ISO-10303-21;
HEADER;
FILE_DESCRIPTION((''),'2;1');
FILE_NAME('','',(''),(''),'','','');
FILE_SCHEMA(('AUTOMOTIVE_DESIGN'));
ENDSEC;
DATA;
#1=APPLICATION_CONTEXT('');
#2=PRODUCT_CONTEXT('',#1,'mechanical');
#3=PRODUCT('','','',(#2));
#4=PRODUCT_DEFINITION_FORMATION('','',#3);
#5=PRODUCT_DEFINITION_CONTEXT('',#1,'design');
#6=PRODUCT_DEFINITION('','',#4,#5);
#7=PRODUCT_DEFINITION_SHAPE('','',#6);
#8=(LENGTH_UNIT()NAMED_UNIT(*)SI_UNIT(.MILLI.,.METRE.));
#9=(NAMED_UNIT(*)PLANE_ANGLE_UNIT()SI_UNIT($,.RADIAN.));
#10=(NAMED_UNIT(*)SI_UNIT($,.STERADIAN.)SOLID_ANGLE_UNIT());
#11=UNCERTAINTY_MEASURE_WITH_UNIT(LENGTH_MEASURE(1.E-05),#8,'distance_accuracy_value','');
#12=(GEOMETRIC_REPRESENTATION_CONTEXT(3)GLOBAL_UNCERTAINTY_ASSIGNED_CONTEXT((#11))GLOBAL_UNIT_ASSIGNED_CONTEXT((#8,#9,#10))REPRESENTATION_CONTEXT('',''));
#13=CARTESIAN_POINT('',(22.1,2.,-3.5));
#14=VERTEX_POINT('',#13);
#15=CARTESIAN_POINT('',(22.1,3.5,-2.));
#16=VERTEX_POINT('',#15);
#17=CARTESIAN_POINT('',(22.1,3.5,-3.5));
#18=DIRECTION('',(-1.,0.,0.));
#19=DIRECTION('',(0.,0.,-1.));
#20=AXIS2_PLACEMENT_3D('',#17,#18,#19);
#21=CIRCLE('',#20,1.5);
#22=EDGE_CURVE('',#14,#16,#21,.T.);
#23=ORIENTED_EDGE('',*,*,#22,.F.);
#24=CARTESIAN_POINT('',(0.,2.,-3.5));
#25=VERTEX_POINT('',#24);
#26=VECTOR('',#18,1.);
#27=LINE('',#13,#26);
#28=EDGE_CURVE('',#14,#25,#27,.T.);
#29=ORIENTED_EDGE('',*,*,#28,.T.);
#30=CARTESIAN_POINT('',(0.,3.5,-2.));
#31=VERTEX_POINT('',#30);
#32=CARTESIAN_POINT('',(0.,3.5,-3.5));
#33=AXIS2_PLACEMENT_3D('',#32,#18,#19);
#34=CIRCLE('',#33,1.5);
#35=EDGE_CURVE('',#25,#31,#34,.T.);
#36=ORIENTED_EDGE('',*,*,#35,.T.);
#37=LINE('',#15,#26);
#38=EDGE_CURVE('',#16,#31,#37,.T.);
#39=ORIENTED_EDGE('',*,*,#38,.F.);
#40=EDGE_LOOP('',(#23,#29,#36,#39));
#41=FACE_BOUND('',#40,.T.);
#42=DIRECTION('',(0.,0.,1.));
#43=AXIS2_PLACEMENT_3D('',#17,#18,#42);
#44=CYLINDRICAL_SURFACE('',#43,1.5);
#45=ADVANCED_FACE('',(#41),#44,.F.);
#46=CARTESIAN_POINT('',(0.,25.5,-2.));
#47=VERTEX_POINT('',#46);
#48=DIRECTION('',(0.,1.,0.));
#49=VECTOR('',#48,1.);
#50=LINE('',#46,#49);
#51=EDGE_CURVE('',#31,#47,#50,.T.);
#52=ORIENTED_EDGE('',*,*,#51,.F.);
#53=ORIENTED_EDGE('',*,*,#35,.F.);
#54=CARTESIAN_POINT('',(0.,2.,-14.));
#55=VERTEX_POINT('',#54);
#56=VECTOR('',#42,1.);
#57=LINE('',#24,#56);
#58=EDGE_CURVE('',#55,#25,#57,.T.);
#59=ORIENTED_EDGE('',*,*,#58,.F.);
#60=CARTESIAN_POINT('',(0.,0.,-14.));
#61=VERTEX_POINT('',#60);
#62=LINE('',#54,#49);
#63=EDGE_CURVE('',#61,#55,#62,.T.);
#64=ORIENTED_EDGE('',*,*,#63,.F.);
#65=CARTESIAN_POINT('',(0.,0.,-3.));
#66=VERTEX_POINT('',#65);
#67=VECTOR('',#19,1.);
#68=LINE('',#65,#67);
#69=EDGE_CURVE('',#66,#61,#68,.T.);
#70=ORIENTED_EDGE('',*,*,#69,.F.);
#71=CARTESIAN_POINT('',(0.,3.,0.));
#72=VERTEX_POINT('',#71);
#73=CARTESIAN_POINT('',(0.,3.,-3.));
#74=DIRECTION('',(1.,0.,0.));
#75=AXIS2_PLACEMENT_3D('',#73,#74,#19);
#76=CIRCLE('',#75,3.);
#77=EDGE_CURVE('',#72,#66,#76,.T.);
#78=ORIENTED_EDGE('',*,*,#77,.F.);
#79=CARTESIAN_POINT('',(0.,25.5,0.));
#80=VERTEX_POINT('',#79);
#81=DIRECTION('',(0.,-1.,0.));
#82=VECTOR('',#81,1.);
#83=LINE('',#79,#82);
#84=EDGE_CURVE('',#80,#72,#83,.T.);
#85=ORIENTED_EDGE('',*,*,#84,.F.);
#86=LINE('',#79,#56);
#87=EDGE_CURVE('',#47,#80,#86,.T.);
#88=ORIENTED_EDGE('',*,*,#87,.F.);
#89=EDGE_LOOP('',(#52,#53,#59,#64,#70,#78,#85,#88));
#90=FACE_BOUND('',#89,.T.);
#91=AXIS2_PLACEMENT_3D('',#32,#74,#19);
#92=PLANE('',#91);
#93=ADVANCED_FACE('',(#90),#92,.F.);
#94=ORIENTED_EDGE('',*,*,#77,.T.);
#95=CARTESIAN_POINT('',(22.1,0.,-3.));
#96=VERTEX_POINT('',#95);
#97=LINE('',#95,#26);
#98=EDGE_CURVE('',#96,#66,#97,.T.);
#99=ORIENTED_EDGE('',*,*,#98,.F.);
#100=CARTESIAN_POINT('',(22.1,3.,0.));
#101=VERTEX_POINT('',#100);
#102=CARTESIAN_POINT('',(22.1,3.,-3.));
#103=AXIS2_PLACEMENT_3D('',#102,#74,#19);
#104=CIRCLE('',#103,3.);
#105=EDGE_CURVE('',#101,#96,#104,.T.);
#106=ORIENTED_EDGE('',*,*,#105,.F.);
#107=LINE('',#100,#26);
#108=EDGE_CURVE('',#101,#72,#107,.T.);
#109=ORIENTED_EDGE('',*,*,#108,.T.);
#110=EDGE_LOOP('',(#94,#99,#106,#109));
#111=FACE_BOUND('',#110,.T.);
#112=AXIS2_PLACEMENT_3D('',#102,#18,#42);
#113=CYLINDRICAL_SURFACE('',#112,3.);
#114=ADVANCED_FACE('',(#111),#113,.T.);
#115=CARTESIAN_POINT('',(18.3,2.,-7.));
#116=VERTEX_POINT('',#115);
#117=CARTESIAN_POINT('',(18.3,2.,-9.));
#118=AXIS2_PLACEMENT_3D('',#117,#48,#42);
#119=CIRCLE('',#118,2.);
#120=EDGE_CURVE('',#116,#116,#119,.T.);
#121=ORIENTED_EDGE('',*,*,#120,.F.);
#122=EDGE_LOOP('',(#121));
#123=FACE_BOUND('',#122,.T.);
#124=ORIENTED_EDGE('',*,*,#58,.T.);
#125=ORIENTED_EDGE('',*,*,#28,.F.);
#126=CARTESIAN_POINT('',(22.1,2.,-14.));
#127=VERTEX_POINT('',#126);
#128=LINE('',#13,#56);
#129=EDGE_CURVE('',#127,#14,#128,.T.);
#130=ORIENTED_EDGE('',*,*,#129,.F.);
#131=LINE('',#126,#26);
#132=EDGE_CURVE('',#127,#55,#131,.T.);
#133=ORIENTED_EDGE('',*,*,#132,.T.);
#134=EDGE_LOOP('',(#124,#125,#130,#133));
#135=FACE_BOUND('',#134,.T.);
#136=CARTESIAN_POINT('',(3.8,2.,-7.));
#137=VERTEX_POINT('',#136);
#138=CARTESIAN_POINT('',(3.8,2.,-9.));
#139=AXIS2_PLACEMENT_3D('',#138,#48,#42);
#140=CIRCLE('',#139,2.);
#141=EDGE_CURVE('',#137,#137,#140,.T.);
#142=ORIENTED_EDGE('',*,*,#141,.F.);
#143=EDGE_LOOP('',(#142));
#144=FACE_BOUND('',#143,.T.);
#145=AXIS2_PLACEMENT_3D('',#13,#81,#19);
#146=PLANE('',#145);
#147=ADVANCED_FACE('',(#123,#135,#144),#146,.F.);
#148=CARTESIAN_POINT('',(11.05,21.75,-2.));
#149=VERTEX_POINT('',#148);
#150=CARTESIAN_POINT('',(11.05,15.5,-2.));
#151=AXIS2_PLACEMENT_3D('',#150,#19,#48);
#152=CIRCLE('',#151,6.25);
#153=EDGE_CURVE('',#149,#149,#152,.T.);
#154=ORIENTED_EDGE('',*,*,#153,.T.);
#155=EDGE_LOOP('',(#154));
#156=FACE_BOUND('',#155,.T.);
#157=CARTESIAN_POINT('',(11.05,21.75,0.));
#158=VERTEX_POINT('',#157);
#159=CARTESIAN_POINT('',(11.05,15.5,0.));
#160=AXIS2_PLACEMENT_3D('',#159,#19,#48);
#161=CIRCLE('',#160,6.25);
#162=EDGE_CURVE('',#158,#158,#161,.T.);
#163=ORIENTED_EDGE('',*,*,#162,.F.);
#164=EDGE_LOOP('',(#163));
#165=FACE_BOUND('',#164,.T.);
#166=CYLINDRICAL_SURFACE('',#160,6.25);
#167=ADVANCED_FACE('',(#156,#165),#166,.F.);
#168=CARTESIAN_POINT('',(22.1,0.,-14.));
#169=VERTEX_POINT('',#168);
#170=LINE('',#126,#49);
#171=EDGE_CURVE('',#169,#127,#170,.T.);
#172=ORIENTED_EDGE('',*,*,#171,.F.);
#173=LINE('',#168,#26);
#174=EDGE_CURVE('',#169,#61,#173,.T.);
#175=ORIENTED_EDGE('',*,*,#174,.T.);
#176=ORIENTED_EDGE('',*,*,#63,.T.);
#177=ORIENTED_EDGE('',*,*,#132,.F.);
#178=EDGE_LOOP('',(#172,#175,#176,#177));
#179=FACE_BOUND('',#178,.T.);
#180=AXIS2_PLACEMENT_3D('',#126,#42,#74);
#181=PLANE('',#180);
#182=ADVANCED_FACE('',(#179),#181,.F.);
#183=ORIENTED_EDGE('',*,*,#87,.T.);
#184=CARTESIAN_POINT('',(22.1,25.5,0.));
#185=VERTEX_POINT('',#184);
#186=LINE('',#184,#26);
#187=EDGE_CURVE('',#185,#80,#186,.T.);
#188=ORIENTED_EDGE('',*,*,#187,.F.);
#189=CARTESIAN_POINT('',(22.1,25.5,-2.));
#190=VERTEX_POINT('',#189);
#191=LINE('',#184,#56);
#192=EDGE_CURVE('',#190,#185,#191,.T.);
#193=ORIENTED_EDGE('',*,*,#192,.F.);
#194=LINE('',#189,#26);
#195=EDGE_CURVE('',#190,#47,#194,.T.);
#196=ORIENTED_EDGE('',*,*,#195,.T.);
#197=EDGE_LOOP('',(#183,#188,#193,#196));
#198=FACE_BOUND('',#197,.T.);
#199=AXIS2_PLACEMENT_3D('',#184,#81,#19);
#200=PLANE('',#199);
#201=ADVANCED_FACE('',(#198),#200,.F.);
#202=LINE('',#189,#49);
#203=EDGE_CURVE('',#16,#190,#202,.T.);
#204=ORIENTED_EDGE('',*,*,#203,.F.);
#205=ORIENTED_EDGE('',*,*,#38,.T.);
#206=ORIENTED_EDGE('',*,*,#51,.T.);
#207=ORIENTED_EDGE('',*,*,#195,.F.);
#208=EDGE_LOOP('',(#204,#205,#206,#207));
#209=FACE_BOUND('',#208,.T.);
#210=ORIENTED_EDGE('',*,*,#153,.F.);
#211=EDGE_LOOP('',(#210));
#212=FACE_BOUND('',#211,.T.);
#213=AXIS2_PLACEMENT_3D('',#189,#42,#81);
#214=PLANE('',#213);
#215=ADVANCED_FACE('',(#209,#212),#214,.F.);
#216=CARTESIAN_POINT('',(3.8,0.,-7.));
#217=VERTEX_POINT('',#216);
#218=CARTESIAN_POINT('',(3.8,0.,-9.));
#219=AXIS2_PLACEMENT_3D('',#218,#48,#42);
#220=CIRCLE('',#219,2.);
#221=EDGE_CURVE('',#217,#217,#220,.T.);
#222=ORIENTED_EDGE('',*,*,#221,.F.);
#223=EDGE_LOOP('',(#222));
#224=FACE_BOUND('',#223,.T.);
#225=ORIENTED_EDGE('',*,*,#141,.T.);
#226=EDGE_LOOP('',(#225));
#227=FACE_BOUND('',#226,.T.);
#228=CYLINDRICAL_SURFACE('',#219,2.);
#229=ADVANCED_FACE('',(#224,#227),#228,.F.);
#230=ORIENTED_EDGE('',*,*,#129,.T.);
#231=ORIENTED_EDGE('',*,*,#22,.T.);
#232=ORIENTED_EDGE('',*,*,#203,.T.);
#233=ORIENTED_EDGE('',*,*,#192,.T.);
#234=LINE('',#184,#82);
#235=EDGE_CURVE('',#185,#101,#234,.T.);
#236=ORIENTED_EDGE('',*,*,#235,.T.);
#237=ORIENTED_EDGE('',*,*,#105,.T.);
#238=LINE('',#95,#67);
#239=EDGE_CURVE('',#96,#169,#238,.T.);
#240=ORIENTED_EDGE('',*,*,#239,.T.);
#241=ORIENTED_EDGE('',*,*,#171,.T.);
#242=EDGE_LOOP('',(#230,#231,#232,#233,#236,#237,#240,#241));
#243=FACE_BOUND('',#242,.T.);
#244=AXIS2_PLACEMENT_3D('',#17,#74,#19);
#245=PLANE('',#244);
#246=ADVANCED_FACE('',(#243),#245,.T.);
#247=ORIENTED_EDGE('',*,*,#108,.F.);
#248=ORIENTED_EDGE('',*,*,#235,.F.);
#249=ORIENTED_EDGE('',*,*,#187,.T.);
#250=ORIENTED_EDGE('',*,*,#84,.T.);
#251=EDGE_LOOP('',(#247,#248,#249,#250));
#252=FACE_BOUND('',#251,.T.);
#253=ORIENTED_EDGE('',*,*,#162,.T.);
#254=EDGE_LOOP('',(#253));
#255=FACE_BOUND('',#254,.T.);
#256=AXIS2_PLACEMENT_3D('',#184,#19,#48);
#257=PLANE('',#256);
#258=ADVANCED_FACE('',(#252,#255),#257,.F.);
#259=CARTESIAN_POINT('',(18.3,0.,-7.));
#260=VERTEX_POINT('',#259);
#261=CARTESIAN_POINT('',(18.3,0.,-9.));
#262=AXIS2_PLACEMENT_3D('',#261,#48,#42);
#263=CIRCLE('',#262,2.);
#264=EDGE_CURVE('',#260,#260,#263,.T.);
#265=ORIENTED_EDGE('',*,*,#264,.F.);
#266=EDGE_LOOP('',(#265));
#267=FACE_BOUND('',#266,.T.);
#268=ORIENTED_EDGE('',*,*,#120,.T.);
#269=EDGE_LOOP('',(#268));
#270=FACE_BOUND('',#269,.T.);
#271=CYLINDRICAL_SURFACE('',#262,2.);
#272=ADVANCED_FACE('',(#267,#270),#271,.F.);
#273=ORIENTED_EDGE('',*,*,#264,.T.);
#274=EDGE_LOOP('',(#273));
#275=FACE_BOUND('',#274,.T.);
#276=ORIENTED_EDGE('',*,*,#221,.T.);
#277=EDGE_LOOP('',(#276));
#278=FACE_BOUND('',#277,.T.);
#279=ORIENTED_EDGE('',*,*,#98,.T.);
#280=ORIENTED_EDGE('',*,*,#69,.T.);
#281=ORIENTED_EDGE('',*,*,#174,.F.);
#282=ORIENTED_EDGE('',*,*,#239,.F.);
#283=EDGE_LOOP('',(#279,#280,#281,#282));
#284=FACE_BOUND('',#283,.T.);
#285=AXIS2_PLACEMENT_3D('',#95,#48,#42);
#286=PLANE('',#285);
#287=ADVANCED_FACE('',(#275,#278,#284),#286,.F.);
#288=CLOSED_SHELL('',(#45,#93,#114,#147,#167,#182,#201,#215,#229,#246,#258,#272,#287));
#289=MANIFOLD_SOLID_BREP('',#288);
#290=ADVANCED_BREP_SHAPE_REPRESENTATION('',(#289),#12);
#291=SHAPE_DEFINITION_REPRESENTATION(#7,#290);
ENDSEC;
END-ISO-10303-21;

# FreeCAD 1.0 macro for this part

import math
import FreeCAD as App
import Part
import Sketcher
from FreeCAD import Vector
Q = App.Units.Quantity

doc = App.newDocument("Part")
params = doc.addObject("Spreadsheet::Sheet", "Params")
for row, (alias, value) in enumerate([
    ("sketch1_radius", "3 mm"),
    ("sketch1_radius2", "1.5 mm"),
    ("sketch1_width", "2 mm"),
    ("sketch1_width2", "22 mm"),
    ("sketch1_height", "11 mm"),
    ("pad1_length", "22.1 mm"),
    ("sketch2_diameter", "4 mm"),
    ("sketch3_diameter", "12.5 mm"),
], start=1):
    params.set(f"A{row}", alias)
    params.set(f"B{row}", "=" + value)
    params.setAlias(f"B{row}", alias)

body = doc.addObject("PartDesign::Body", "Body")

sketch1 = body.newObject("Sketcher::SketchObject", "Sketch")
sketch1.AttachmentSupport = (doc.getObject("YZ_Plane"), [""])
sketch1.MapMode = "FlatFace"
sketch1.addGeometry(Part.LineSegment(Vector(25.5, 0, 0), Vector(3, 0, 0)), False)
sketch1.addGeometry(Part.ArcOfCircle(Part.Circle(Vector(3, -3, 0), Vector(0, 0, 1), 3), math.radians(90), math.radians(180)), False)
sketch1.addGeometry(Part.LineSegment(Vector(0, -3, 0), Vector(0, -14, 0)), False)
sketch1.addGeometry(Part.LineSegment(Vector(0, -14, 0), Vector(2, -14, 0)), False)
sketch1.addGeometry(Part.LineSegment(Vector(2, -14, 0), Vector(2, -3.5, 0)), False)
sketch1.addGeometry(Part.ArcOfCircle(Part.Circle(Vector(3.5, -3.5, 0), Vector(0, 0, 1), 1.5), math.radians(90), math.radians(180)), False)
sketch1.addGeometry(Part.LineSegment(Vector(3.5, -2, 0), Vector(25.5, -2, 0)), False)
sketch1.addGeometry(Part.LineSegment(Vector(25.5, -2, 0), Vector(25.5, 0, 0)), False)
sketch1.addConstraint(Sketcher.Constraint("Tangent", 0, 2, 1, 1))
sketch1.addConstraint(Sketcher.Constraint("Tangent", 1, 2, 2, 1))
sketch1.addConstraint(Sketcher.Constraint("Coincident", 2, 2, 3, 1))
sketch1.addConstraint(Sketcher.Constraint("Coincident", 3, 2, 4, 1))
sketch1.addConstraint(Sketcher.Constraint("Tangent", 4, 2, 5, 2))
sketch1.addConstraint(Sketcher.Constraint("Tangent", 5, 1, 6, 1))
sketch1.addConstraint(Sketcher.Constraint("Coincident", 6, 2, 7, 1))
sketch1.addConstraint(Sketcher.Constraint("Coincident", 7, 2, 0, 1))
sketch1.addConstraint(Sketcher.Constraint("Horizontal", 0))
sketch1.addConstraint(Sketcher.Constraint("Vertical", 2))
sketch1.addConstraint(Sketcher.Constraint("Horizontal", 3))
sketch1.addConstraint(Sketcher.Constraint("Vertical", 4))
sketch1.addConstraint(Sketcher.Constraint("Horizontal", 6))
sketch1.addConstraint(Sketcher.Constraint("Vertical", 7))
sketch1.addConstraint(Sketcher.Constraint("PointOnObject", 0, 2, -1))
sketch1.addConstraint(Sketcher.Constraint("PointOnObject", 1, 2, -2))
sketch1.addConstraint(Sketcher.Constraint("Equal", 3, 7))
sketch1.addConstraint(Sketcher.Constraint("Radius", 1, Q("3 mm")))
sketch1.addConstraint(Sketcher.Constraint("Radius", 5, Q("1.5 mm")))
sketch1.addConstraint(Sketcher.Constraint("DistanceX", 3, 1, 3, 2, Q("2 mm")))
sketch1.addConstraint(Sketcher.Constraint("DistanceX", 6, 1, 6, 2, Q("22 mm")))
sketch1.addConstraint(Sketcher.Constraint("DistanceY", 2, 2, 2, 1, Q("11 mm")))
sketch1.setExpression("Constraints[17]", "Params.sketch1_radius")
sketch1.setExpression("Constraints[18]", "Params.sketch1_radius2")
sketch1.setExpression("Constraints[19]", "Params.sketch1_width")
sketch1.setExpression("Constraints[20]", "Params.sketch1_width2")
sketch1.setExpression("Constraints[21]", "Params.sketch1_height")
pad1 = body.newObject("PartDesign::Pad", "Pad")
pad1.Profile = sketch1
pad1.setExpression("Length", "Params.pad1_length")

sketch2 = body.newObject("Sketcher::SketchObject", "Sketch001")
sketch2.AttachmentSupport = (doc.getObject("XZ_Plane"), [""])
sketch2.MapMode = "FlatFace"
sketch2.AttachmentOffset = App.Placement(Vector(0, 0, -2), App.Rotation())
sketch2.addGeometry(Part.Circle(Vector(3.8, -9, 0), Vector(0, 0, 1), 2), False)
sketch2.addGeometry(Part.Circle(Vector(18.3, -9, 0), Vector(0, 0, 1), 2), False)
sketch2.addConstraint(Sketcher.Constraint("Equal", 0, 1))
sketch2.addConstraint(Sketcher.Constraint("Horizontal", 0, 3, 1, 3))
sketch2.addConstraint(Sketcher.Constraint("Diameter", 0, Q("4 mm")))
sketch2.addConstraint(Sketcher.Constraint("DistanceY", 0, 3, -1, 1, Q("9 mm")))
sketch2.addConstraint(Sketcher.Constraint("DistanceX", -1, 1, 0, 3, Q("3.8 mm")))
sketch2.addConstraint(Sketcher.Constraint("DistanceX", -1, 1, 1, 3, Q("18.3 mm")))
sketch2.setExpression("Constraints[2]", "Params.sketch2_diameter")
pocket1 = body.newObject("PartDesign::Pocket", "Pocket")
pocket1.Profile = sketch2
pocket1.Type = "ThroughAll"
pocket1.Reversed = True

sketch3 = body.newObject("Sketcher::SketchObject", "Sketch002")
sketch3.AttachmentSupport = (doc.getObject("XY_Plane"), [""])
sketch3.MapMode = "FlatFace"
sketch3.AttachmentOffset = App.Placement(Vector(0, 0, -2), App.Rotation())
sketch3.addGeometry(Part.Circle(Vector(11, 16, 0), Vector(0, 0, 1), 6), False)
sketch3.addConstraint(Sketcher.Constraint("Diameter", 0, Q("12.5 mm")))
sketch3.addConstraint(Sketcher.Constraint("DistanceY", -1, 1, 0, 3, Q("15.5 mm")))
sketch3.addConstraint(Sketcher.Constraint("DistanceX", -1, 1, 0, 3, Q("11.05 mm")))
sketch3.setExpression("Constraints[0]", "Params.sketch3_diameter")
pocket2 = body.newObject("PartDesign::Pocket", "Pocket001")
pocket2.Profile = sketch3
pocket2.Type = "ThroughAll"
pocket2.Reversed = True

doc.recompute()
